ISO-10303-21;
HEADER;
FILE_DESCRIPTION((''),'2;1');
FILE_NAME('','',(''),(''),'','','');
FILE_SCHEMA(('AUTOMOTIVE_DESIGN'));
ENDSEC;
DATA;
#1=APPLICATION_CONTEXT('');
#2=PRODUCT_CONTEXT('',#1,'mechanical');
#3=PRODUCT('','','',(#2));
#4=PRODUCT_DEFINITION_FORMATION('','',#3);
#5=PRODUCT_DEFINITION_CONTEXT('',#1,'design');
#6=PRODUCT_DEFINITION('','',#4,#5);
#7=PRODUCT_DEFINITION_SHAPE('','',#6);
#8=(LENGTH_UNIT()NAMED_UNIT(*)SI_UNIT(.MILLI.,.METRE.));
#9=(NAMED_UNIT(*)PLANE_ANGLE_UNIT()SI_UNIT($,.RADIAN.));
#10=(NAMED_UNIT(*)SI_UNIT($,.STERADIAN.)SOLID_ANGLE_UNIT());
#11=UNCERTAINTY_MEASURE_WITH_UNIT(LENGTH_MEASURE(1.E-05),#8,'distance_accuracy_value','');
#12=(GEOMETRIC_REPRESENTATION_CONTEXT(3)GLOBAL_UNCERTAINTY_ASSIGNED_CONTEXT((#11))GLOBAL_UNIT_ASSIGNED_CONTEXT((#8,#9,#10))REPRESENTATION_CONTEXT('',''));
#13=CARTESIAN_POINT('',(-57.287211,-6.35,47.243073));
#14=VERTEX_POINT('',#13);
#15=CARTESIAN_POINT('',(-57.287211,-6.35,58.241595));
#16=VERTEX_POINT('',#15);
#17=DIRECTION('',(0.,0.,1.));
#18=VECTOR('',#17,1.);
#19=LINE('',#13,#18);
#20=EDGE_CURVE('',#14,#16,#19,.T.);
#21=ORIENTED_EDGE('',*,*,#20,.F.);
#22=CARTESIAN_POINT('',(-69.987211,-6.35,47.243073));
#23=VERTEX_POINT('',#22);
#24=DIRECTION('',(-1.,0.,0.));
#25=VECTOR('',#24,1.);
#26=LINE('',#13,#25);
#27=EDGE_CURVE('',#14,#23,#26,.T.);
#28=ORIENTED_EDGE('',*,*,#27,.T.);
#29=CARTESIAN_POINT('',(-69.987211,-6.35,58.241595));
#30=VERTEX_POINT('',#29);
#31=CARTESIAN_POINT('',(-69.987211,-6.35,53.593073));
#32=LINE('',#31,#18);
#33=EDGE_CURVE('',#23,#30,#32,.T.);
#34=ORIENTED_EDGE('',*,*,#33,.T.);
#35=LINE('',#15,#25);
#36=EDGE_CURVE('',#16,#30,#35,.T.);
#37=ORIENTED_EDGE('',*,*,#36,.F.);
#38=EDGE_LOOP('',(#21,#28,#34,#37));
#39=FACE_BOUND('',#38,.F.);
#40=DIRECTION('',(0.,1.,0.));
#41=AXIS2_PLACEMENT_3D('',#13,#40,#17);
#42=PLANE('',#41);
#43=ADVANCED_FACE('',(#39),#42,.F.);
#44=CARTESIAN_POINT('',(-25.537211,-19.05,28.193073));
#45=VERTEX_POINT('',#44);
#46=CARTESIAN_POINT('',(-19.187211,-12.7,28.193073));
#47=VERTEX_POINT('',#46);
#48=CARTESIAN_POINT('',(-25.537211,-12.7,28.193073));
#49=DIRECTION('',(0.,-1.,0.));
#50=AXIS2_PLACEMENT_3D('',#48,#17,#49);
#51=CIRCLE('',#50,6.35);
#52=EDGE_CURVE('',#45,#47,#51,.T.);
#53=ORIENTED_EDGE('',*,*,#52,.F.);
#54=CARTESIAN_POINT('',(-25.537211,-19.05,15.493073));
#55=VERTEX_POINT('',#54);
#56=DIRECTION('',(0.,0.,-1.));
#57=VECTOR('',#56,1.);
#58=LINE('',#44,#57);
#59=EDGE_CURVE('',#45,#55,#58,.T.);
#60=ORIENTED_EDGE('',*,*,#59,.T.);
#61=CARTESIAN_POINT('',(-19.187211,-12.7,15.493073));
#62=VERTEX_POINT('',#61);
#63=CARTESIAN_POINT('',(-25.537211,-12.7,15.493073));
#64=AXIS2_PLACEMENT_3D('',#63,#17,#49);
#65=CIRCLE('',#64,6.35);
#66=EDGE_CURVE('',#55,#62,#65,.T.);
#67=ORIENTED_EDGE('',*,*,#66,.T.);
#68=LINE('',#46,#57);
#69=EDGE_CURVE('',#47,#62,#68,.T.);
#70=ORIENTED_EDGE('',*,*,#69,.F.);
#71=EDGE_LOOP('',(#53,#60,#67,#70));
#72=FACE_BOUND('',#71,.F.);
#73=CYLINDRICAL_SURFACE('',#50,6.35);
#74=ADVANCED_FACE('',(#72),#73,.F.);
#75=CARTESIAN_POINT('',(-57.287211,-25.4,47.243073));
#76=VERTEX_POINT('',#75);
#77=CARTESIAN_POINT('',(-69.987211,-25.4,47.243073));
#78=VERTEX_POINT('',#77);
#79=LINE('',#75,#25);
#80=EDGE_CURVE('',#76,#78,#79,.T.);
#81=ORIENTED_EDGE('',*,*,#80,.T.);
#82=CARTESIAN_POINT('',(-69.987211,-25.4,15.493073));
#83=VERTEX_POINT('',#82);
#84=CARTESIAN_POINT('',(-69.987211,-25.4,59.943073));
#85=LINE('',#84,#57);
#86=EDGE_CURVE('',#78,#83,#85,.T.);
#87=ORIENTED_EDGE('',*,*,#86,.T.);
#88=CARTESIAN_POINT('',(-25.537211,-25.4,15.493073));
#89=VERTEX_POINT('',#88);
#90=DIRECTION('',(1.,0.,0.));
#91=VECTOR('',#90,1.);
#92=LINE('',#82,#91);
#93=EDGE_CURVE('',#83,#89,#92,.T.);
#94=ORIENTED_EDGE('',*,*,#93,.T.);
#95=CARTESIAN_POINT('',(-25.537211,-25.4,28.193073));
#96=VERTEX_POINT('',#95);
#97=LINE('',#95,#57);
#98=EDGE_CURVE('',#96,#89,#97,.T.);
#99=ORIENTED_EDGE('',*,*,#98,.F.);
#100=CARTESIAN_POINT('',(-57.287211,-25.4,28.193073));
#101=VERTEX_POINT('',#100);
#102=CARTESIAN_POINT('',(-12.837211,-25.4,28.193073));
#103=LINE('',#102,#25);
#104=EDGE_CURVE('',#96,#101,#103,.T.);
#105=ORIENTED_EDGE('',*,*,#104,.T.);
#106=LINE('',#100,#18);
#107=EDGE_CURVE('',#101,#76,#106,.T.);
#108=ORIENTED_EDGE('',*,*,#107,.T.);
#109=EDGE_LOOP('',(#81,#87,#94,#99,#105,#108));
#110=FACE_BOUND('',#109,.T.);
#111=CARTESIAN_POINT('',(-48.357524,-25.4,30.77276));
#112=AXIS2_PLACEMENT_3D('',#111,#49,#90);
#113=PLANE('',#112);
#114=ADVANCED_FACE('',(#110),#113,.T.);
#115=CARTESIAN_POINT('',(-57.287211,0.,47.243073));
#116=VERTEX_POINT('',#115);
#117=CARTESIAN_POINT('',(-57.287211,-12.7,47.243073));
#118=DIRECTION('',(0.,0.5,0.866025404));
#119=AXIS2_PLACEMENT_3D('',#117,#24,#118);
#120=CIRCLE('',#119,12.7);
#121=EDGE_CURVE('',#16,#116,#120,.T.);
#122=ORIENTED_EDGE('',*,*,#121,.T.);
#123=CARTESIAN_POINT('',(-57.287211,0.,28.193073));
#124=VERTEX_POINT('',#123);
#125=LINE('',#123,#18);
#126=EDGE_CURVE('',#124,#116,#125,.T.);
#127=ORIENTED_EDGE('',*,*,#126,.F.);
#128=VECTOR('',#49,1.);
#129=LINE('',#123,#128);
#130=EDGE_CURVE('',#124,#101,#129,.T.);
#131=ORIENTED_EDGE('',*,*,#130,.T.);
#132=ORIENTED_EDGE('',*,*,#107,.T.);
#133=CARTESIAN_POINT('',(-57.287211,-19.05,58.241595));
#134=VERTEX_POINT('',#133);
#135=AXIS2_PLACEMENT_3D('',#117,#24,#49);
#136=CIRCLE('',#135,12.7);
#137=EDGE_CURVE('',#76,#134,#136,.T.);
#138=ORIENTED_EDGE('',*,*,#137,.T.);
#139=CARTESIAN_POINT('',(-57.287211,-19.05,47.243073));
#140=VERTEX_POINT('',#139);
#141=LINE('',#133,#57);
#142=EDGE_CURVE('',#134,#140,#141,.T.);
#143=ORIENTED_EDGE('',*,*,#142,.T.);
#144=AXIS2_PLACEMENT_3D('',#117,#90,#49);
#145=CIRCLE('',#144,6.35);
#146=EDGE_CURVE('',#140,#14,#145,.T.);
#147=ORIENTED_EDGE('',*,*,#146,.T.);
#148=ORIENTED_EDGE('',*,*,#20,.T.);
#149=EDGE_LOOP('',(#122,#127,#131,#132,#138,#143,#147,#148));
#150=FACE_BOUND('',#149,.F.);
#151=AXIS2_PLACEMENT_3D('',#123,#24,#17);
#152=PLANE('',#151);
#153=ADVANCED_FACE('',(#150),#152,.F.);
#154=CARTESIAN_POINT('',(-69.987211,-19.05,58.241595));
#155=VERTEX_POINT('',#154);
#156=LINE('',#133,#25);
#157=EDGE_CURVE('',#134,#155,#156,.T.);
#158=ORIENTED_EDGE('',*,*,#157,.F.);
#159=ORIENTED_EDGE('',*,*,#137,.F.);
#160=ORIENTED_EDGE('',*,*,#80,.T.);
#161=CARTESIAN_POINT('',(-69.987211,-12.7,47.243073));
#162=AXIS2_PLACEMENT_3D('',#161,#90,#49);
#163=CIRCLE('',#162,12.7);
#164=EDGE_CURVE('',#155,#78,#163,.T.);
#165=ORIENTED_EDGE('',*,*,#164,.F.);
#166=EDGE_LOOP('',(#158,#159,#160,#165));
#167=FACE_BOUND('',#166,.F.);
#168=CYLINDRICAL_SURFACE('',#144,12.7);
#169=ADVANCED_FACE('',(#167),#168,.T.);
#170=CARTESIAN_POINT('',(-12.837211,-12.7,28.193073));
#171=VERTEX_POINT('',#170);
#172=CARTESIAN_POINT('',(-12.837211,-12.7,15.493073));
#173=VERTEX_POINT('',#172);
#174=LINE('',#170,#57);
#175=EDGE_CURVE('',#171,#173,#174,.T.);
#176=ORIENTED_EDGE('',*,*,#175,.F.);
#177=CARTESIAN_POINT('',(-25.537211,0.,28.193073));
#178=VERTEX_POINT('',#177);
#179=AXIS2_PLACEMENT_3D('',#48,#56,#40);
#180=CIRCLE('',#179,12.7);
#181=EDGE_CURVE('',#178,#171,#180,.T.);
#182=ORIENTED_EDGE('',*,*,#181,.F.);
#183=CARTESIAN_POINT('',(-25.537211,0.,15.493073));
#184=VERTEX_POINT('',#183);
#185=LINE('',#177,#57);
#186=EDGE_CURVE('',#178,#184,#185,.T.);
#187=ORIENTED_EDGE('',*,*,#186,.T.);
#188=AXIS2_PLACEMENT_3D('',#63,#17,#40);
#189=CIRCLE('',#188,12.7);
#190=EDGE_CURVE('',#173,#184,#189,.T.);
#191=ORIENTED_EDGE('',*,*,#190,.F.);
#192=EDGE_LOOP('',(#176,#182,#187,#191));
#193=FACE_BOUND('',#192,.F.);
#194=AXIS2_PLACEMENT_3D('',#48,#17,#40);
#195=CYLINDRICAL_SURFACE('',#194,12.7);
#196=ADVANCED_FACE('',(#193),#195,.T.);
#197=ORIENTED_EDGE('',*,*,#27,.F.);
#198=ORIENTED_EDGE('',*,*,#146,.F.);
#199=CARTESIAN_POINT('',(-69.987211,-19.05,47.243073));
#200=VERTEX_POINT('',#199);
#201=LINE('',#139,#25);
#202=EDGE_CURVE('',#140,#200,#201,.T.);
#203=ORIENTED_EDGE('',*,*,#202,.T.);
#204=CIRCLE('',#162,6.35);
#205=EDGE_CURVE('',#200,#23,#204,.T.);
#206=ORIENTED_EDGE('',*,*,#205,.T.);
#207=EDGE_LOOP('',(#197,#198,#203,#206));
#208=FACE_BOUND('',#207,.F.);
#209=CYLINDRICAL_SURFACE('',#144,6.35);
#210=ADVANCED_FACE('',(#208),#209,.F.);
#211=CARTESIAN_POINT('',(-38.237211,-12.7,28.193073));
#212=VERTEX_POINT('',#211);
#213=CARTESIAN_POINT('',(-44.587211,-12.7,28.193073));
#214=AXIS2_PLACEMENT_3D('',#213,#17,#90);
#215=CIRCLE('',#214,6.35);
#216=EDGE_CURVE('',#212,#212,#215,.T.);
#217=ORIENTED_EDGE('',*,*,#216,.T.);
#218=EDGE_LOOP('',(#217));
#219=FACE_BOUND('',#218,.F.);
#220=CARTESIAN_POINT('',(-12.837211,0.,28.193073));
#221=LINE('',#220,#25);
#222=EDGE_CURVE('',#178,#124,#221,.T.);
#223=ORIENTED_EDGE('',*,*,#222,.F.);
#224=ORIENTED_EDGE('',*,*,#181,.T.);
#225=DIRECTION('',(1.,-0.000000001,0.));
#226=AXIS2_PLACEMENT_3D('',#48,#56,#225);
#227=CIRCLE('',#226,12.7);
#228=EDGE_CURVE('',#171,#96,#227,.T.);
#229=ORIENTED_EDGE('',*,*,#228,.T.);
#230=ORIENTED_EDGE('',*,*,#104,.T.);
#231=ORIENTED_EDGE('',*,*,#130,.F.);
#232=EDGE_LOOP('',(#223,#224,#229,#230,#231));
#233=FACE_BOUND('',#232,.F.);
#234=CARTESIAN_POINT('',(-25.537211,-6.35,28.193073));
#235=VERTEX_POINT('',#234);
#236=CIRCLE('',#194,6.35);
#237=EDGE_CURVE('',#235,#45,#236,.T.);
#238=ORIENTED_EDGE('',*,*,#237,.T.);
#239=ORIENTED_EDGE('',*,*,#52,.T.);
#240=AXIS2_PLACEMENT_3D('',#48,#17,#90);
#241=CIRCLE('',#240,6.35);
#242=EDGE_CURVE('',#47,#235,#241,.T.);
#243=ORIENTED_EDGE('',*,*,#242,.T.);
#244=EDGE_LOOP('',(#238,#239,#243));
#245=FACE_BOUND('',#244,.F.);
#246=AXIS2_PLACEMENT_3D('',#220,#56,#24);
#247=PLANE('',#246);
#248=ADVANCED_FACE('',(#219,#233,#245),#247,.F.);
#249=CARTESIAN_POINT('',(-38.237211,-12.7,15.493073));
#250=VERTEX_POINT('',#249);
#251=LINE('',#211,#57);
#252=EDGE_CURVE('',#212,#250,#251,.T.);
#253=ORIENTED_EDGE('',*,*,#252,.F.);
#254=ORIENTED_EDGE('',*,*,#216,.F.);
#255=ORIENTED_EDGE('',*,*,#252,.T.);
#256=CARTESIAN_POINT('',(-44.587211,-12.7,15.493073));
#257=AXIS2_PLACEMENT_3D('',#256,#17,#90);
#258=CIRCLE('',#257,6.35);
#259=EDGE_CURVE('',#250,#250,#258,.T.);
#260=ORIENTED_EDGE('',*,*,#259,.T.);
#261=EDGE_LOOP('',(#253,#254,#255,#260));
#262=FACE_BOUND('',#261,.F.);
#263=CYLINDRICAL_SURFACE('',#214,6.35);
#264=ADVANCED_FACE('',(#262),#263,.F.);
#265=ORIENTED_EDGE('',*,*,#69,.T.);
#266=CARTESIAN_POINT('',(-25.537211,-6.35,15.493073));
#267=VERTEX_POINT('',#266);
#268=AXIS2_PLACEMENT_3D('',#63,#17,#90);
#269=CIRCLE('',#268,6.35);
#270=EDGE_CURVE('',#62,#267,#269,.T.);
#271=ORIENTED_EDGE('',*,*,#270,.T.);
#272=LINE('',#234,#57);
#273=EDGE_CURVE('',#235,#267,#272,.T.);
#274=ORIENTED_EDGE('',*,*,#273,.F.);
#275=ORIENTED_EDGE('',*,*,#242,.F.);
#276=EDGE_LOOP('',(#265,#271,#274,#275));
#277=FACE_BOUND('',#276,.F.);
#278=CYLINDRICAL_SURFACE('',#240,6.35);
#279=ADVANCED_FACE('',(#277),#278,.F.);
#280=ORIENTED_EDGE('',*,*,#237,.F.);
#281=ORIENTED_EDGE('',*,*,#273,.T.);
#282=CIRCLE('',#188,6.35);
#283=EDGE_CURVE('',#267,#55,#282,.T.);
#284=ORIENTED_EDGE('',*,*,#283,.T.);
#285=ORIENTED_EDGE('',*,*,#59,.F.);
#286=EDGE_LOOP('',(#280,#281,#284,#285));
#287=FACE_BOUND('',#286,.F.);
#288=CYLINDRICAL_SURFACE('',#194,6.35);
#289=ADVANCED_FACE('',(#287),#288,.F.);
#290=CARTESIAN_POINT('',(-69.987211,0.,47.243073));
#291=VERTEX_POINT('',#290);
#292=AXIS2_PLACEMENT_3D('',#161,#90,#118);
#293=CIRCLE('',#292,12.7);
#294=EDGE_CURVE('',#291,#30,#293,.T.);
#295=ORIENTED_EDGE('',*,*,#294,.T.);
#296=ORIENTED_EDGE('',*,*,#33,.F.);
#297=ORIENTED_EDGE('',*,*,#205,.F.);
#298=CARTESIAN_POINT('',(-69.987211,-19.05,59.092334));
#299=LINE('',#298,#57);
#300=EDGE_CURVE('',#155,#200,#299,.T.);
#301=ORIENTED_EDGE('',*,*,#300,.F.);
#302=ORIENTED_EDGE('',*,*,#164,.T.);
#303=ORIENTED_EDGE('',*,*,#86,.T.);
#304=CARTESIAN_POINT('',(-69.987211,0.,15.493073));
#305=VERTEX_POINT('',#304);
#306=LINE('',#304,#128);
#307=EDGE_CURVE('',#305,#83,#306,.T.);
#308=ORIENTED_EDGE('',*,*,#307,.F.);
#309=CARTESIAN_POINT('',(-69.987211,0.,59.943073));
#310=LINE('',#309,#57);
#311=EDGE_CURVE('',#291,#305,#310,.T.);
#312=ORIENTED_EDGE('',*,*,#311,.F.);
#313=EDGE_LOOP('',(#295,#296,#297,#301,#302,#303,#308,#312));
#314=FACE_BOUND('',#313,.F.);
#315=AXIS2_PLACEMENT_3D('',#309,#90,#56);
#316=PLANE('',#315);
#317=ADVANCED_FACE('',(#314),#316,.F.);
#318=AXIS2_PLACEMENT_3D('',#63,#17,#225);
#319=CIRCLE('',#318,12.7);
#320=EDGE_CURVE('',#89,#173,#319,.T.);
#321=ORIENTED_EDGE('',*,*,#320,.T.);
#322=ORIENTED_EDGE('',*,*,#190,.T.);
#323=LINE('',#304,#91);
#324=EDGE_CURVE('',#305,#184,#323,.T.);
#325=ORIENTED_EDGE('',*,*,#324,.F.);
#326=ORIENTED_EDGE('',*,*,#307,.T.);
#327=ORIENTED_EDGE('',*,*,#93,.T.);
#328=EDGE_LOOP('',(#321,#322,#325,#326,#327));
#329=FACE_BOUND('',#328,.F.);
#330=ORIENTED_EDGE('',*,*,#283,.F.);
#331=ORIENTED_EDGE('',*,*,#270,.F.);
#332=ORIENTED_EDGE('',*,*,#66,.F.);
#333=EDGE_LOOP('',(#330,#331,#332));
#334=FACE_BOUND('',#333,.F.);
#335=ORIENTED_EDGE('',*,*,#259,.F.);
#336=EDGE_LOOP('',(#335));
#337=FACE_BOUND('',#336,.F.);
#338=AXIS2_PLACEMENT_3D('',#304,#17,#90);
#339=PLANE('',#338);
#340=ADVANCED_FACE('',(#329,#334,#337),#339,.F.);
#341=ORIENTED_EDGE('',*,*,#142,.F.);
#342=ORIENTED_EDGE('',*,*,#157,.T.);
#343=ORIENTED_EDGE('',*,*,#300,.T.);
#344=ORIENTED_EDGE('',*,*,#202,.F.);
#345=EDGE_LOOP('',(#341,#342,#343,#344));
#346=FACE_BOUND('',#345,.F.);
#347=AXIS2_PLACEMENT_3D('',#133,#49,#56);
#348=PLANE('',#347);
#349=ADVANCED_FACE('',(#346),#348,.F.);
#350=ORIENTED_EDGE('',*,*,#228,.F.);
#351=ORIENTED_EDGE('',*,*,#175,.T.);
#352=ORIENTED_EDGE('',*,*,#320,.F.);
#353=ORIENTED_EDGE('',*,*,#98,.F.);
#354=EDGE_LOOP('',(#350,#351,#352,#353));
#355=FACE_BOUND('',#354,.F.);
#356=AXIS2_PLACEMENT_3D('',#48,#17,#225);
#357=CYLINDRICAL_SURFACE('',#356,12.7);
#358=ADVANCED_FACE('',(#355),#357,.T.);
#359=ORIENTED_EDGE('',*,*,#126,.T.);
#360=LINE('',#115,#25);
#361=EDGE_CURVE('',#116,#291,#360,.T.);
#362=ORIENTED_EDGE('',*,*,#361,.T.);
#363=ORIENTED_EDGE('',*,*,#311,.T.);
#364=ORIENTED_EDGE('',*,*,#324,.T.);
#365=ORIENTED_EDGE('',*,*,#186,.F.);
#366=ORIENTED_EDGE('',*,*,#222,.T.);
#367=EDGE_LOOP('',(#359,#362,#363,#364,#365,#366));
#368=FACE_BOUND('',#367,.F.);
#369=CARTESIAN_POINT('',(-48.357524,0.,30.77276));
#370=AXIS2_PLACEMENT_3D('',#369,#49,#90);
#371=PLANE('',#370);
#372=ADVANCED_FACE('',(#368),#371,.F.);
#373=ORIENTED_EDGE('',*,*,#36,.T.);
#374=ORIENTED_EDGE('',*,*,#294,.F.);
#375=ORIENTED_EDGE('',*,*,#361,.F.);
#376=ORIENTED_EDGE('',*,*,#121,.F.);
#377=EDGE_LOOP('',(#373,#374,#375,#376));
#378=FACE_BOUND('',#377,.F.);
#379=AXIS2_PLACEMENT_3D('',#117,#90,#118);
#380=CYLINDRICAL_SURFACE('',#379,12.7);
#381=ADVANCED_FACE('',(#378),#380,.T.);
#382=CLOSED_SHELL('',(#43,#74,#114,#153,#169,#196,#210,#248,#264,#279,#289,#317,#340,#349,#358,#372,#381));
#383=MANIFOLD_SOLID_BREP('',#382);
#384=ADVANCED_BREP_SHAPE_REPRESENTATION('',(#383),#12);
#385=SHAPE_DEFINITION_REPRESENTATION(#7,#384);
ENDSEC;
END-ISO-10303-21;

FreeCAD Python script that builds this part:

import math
import FreeCAD as App
import Part
import Sketcher
from FreeCAD import Vector
Q = App.Units.Quantity


def add_polygon(sketch, points):
    """Adds a closed chain of lines whose ends are joined by coincident constraints."""
    first, n = sketch.GeometryCount, len(points)
    for a, b in zip(points, points[1:] + points[:1]):
        sketch.addGeometry(Part.LineSegment(App.Vector(*a, 0), App.Vector(*b, 0)), False)
    for i in range(n):
        sketch.addConstraint(Sketcher.Constraint("Coincident", first + i, 2, first + (i + 1) % n, 1))

doc = App.newDocument("Part")
body = doc.addObject("PartDesign::Body", "Body")

# Sketch on XZ plane
sketch1 = body.newObject("Sketcher::SketchObject", "Sketch")
sketch1.AttachmentSupport = (doc.getObject("XZ_Plane"), [""])
sketch1.MapMode = "FlatFace"
add_polygon(sketch1, [(-57, 60), (-70, 60), (-70, 15), (-13, 15), (-13, 28), (-57, 28)])  # lines 0-5
sketch1.addConstraint([
    Sketcher.Constraint("Horizontal", 0),
    Sketcher.Constraint("Vertical", 1),
    Sketcher.Constraint("Horizontal", 2),
    Sketcher.Constraint("Vertical", 3),
    Sketcher.Constraint("Horizontal", 4),
    Sketcher.Constraint("Vertical", 5),
    Sketcher.Constraint("Equal", 4, 1),
    Sketcher.Constraint("Equal", 0, 3),
    Sketcher.Constraint("DistanceX", 0, 2, 0, 1, Q("0.5 in")),
    Sketcher.Constraint("DistanceX", 2, 1, 2, 2, Q("2.25 in")),
    Sketcher.Constraint("DistanceX", 0, 2, -1, 1, 69.987211),
    Sketcher.Constraint("DistanceY", -1, 1, 0, 2, 59.943073),
])
pad1 = body.newObject("PartDesign::Pad", "Pad")
pad1.Profile = sketch1
pad1.Length = Q("1 in")

# Sketch on XY plane
sketch2 = body.newObject("Sketcher::SketchObject", "Sketch001")
sketch2.AttachmentSupport = (doc.getObject("XY_Plane"), [""])
sketch2.MapMode = "FlatFace"
sketch2.AttachmentOffset = App.Placement(Vector(0, 0, 28.193073), App.Rotation())
sketch2.addGeometry([
    Part.ArcOfCircle(Part.Circle(Vector(-26, -13, 0), Vector(0, 0, 1), 13), math.radians(-90), math.radians(0)),  # 0
    Part.LineSegment(Vector(-26, -25, 0), Vector(-13, -25, 0)),  # 1
    Part.LineSegment(Vector(-13, -25, 0), Vector(-13, -13, 0)),  # 2
    Part.LineSegment(Vector(-13, 0, 0), Vector(-26, 0, 0)),  # 3
    Part.ArcOfCircle(Part.Circle(Vector(-26, -13, 0), Vector(0, 0, 1), 13), math.radians(0), math.radians(90)),  # 4
    Part.LineSegment(Vector(-13, -13, 0), Vector(-13, 0, 0)),  # 5
    Part.ArcOfCircle(Part.Circle(Vector(-26, -13, 0), Vector(0, 0, 1), 6), math.radians(-90), math.radians(0)),  # 6
    Part.ArcOfCircle(Part.Circle(Vector(-26, -13, 0), Vector(0, 0, 1), 6), math.radians(0), math.radians(90)),  # 7
    Part.ArcOfCircle(Part.Circle(Vector(-26, -13, 0), Vector(0, 0, 1), 6), math.radians(90), math.radians(270)),  # 8
    Part.Circle(Vector(-45, -13, 0), Vector(0, 0, 1), 6),  # 9
], False)
sketch2.addConstraint([
    Sketcher.Constraint("Tangent", 0, 1, 1, 1),
    Sketcher.Constraint("Coincident", 1, 2, 2, 1),
    Sketcher.Constraint("Tangent", 2, 2, 0, 2),
    Sketcher.Constraint("Tangent", 3, 2, 4, 2),
    Sketcher.Constraint("Tangent", 4, 1, 5, 1),
    Sketcher.Constraint("Coincident", 5, 2, 3, 1),
    Sketcher.Constraint("Tangent", 6, 2, 7, 1),
    Sketcher.Constraint("Tangent", 7, 2, 8, 1),
    Sketcher.Constraint("Tangent", 8, 2, 6, 1),
    Sketcher.Constraint("Horizontal", 1),
    Sketcher.Constraint("Vertical", 2),
    Sketcher.Constraint("Horizontal", 3),
    Sketcher.Constraint("Vertical", 5),
    Sketcher.Constraint("Coincident", 4, 3, 0, 3),
    Sketcher.Constraint("Coincident", 6, 3, 0, 3),
    Sketcher.Constraint("Equal", 0, 4),
    Sketcher.Constraint("Equal", 8, 9),
    Sketcher.Constraint("PointOnObject", 3, 2, -1),
    Sketcher.Constraint("Horizontal", 8, 3, 9, 3),
    Sketcher.Constraint("Horizontal", 4, 1, 6, 2),
    Sketcher.Constraint("Vertical", 3, 2, 7, 2),
    Sketcher.Constraint("Vertical", 7, 2, 8, 2),
    Sketcher.Constraint("Diameter", 9, Q("0.5 in")),
    Sketcher.Constraint("Radius", 0, Q("0.5 in")),
    Sketcher.Constraint("DistanceX", 9, 3, 0, 3, Q("0.75 in")),
    Sketcher.Constraint("DistanceX", 0, 3, -1, 1, 25.537211),
])
pocket1 = body.newObject("PartDesign::Pocket", "Pocket")
pocket1.Profile = sketch2
pocket1.Type = "ThroughAll"

# Sketch on YZ plane
sketch3 = body.newObject("Sketcher::SketchObject", "Sketch002")
sketch3.AttachmentSupport = (doc.getObject("YZ_Plane"), [""])
sketch3.MapMode = "FlatFace"
sketch3.AttachmentOffset = App.Placement(Vector(0, 0, -57.287211), App.Rotation())
sketch3.addGeometry([
    Part.LineSegment(Vector(-25, 60, 0), Vector(-25, 47, 0)),  # 0
    Part.ArcOfCircle(Part.Circle(Vector(-13, 47, 0), Vector(0, 0, 1), 13), math.radians(120), math.radians(180)),  # 1
    Part.LineSegment(Vector(-19, 58, 0), Vector(-19, 47, 0)),  # 2
    Part.ArcOfCircle(Part.Circle(Vector(-13, 47, 0), Vector(0, 0, 1), 6), math.radians(180), math.radians(360)),  # 3
    Part.LineSegment(Vector(-6, 47, 0), Vector(-6, 58, 0)),  # 4
    Part.ArcOfCircle(Part.Circle(Vector(-13, 47, 0), Vector(0, 0, 1), 13), math.radians(0), math.radians(60)),  # 5
    Part.LineSegment(Vector(0, 47, 0), Vector(0, 60, 0)),  # 6
    Part.LineSegment(Vector(0, 60, 0), Vector(-25, 60, 0)),  # 7
], False)
sketch3.addConstraint([
    Sketcher.Constraint("Tangent", 0, 2, 1, 2),
    Sketcher.Constraint("Coincident", 1, 1, 2, 1),
    Sketcher.Constraint("Tangent", 2, 2, 3, 1),
    Sketcher.Constraint("Tangent", 3, 2, 4, 1),
    Sketcher.Constraint("Coincident", 4, 2, 5, 2),
    Sketcher.Constraint("Tangent", 5, 1, 6, 1),
    Sketcher.Constraint("Coincident", 6, 2, 7, 1),
    Sketcher.Constraint("Coincident", 7, 2, 0, 1),
    Sketcher.Constraint("Vertical", 0),
    Sketcher.Constraint("Vertical", 2),
    Sketcher.Constraint("Vertical", 4),
    Sketcher.Constraint("Vertical", 6),
    Sketcher.Constraint("Horizontal", 7),
    Sketcher.Constraint("Coincident", 3, 3, 1, 3),
    Sketcher.Constraint("Coincident", 5, 3, 1, 3),
    Sketcher.Constraint("Equal", 1, 5),
    Sketcher.Constraint("PointOnObject", 5, 1, -2),
    Sketcher.Constraint("Radius", 1, Q("0.5 in")),
    Sketcher.Constraint("Radius", 3, Q("0.25 in")),
    Sketcher.Constraint("DistanceY", 0, 2, 0, 1, Q("0.5 in")),
    Sketcher.Constraint("DistanceY", -1, 1, 1, 3, 47.243073),
])
pocket2 = body.newObject("PartDesign::Pocket", "Pocket001")
pocket2.Profile = sketch3
pocket2.Type = "ThroughAll"

doc.recompute()
